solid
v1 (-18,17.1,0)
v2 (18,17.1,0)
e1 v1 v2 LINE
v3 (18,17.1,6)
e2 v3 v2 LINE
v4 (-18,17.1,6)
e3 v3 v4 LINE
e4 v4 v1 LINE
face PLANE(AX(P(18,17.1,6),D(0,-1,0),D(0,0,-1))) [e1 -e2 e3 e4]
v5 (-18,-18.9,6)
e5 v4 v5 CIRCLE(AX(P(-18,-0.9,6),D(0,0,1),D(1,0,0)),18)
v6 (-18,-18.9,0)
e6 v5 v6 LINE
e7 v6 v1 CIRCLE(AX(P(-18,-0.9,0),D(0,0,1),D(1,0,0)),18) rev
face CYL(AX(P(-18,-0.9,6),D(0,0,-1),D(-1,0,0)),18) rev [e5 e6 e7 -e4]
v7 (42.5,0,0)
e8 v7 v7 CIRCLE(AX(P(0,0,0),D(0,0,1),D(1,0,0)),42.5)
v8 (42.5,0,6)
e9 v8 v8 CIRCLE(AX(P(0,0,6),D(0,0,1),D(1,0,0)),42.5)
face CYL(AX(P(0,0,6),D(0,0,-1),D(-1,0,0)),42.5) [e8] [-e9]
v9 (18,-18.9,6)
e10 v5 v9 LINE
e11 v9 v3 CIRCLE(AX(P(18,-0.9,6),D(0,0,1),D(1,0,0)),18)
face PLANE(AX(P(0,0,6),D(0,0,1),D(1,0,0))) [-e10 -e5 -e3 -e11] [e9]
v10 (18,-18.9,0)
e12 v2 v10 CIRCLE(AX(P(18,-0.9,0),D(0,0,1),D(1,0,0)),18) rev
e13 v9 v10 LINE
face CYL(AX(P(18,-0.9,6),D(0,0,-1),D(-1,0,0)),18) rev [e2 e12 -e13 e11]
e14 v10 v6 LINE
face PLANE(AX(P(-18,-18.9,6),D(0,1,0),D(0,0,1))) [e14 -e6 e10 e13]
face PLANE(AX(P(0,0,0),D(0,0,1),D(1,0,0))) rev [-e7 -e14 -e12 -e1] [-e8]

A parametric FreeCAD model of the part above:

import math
import FreeCAD as App
import Part
import Sketcher

doc = App.newDocument("Part")
body = doc.addObject("PartDesign::Body", "Body")

# Sketch on XY plane
sketch1 = doc.addObject("Sketcher::SketchObject", "Sketch")
body.addObject(sketch1)
sketch1.AttachmentSupport = (doc.XY_Plane, [""])
sketch1.MapMode = "FlatFace"
sketch1.addGeometry(Part.Circle(App.Vector(0, 0, 0), App.Vector(0, 0, 1), 42), False)
sketch1.addConstraint([
    Sketcher.Constraint("Coincident", 0, 3, -1, 1),
    Sketcher.Constraint("Diameter", 0, 85.0),
])
pad1 = doc.addObject("PartDesign::Pad", "Pad")
body.addObject(pad1)
pad1.Profile = sketch1
pad1.Length = 6

# Sketch on XY plane
sketch2 = doc.addObject("Sketcher::SketchObject", "Sketch001")
body.addObject(sketch2)
sketch2.AttachmentSupport = (doc.XY_Plane, [""])
sketch2.MapMode = "FlatFace"
sketch2.addGeometry([
    Part.LineSegment(App.Vector(-18, -19, 0), App.Vector(18, -19, 0)),
    Part.ArcOfCircle(Part.Circle(App.Vector(18, -1, 0), App.Vector(0, 0, 1), 18), math.radians(-90), math.radians(90)),
    Part.LineSegment(App.Vector(18, 17, 0), App.Vector(-18, 17, 0)),
    Part.ArcOfCircle(Part.Circle(App.Vector(-18, -1, 0), App.Vector(0, 0, 1), 18), math.radians(90), math.radians(270)),
], False)
sketch2.addConstraint([
    Sketcher.Constraint("Tangent", 0, 2, 1, 1),
    Sketcher.Constraint("Tangent", 1, 2, 2, 1),
    Sketcher.Constraint("Tangent", 2, 2, 3, 1),
    Sketcher.Constraint("Tangent", 3, 2, 0, 1),
    Sketcher.Constraint("Horizontal", 0),
    Sketcher.Constraint("Horizontal", 2),
    Sketcher.Constraint("Radius", 1, 18.0),
    Sketcher.Constraint("DistanceX", 0, 1, 0, 2, 36.0),
    Sketcher.Constraint("DistanceX", -1, 1, 1, 3, 18.0),
    Sketcher.Constraint("DistanceY", 1, 3, -1, 1, 0.9),
])
pocket1 = doc.addObject("PartDesign::Pocket", "Pocket")
body.addObject(pocket1)
pocket1.Profile = sketch2
pocket1.Type = "ThroughAll"
pocket1.Midplane = True

doc.recompute()
